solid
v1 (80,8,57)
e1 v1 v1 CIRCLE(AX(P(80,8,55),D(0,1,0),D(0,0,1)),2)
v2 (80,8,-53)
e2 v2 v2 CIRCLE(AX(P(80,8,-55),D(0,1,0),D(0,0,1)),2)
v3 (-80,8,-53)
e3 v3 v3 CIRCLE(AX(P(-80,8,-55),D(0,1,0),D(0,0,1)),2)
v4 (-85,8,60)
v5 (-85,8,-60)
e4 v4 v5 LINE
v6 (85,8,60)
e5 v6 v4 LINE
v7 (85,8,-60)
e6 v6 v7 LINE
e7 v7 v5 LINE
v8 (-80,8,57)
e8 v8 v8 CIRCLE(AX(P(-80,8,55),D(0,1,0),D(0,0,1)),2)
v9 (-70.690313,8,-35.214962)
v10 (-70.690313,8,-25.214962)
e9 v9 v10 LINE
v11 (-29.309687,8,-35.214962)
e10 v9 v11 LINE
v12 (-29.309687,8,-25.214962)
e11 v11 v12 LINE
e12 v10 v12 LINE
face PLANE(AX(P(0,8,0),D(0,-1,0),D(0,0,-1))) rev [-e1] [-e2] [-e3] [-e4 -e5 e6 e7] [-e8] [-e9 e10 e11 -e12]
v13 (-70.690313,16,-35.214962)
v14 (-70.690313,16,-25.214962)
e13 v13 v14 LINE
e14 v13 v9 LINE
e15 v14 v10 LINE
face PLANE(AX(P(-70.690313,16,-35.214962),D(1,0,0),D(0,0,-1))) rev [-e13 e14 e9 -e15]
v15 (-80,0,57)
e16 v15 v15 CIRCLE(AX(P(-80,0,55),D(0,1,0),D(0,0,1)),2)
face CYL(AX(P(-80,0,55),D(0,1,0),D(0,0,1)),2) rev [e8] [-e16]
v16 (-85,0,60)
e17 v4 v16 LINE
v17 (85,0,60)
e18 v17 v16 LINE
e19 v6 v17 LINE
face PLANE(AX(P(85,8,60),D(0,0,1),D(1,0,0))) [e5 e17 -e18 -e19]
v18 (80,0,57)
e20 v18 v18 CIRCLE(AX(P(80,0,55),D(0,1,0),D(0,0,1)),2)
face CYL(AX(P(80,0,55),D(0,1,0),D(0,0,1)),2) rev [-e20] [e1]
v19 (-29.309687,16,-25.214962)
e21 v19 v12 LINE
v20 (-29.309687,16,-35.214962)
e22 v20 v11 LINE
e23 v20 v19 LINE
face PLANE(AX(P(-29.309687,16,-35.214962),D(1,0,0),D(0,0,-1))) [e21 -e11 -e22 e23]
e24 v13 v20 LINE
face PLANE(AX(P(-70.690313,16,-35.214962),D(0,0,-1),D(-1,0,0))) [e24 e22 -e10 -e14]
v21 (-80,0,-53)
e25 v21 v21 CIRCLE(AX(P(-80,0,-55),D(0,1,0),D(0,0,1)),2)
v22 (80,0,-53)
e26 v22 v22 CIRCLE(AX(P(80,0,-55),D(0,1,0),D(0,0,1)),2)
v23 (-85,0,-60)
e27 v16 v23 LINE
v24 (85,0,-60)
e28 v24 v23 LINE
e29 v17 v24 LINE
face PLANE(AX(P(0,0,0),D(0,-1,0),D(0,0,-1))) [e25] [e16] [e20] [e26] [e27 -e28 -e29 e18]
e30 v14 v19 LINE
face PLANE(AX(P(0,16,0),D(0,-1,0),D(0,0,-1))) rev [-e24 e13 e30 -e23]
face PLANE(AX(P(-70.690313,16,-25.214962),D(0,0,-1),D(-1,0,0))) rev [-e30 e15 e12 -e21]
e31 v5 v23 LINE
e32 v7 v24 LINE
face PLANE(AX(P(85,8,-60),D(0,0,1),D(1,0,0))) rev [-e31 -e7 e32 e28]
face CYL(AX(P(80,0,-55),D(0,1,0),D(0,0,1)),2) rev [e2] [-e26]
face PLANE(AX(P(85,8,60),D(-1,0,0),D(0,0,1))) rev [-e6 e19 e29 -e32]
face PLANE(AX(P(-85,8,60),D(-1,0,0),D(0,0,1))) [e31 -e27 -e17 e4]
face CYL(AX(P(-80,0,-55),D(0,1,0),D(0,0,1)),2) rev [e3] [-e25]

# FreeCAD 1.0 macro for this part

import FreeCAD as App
import Part
import Sketcher


def add_polygon(sketch, points):
    """Adds a closed chain of lines whose ends are joined by coincident constraints."""
    first, n = sketch.GeometryCount, len(points)
    for a, b in zip(points, points[1:] + points[:1]):
        sketch.addGeometry(Part.LineSegment(App.Vector(*a, 0), App.Vector(*b, 0)), False)
    for i in range(n):
        sketch.addConstraint(Sketcher.Constraint("Coincident", first + i, 2, first + (i + 1) % n, 1))

doc = App.newDocument("Part")
body = doc.addObject("PartDesign::Body", "Body")

# Sketch on XZ plane
sketch1 = doc.addObject("Sketcher::SketchObject", "Sketch")
body.addObject(sketch1)
sketch1.AttachmentSupport = (doc.XZ_Plane, [""])
sketch1.MapMode = "FlatFace"
add_polygon(sketch1, [(-85, -60), (-85, 60), (85, 60), (85, -60)])  # lines 0-3
sketch1.addConstraint([
    Sketcher.Constraint("Vertical", 0),
    Sketcher.Constraint("Horizontal", 1),
    Sketcher.Constraint("Vertical", 2),
    Sketcher.Constraint("Horizontal", 3),
    Sketcher.Constraint("Symmetric", 0, 2, 2, 2, -1, 1),
    Sketcher.Constraint("DistanceX", 1, 1, 1, 2, 170.0),
    Sketcher.Constraint("DistanceY", 0, 1, 0, 2, 120.0),
])
pad1 = doc.addObject("PartDesign::Pad", "Pad")
body.addObject(pad1)
pad1.Profile = sketch1
pad1.Length = 8
pad1.Reversed = True

# Sketch on XZ plane
sketch2 = doc.addObject("Sketcher::SketchObject", "Sketch001")
body.addObject(sketch2)
sketch2.AttachmentSupport = (doc.XZ_Plane, [""])
sketch2.MapMode = "FlatFace"
sketch2.AttachmentOffset = App.Placement(App.Vector(0, 0, -8), App.Rotation())
add_polygon(sketch2, [(-70.690313, -35.214962), (-70.690313, -25.214962), (-29.309687, -25.214962), (-29.309687, -35.214962)])  # lines 0-3
sketch2.addConstraint([
    Sketcher.Constraint("Vertical", 0),
    Sketcher.Constraint("Horizontal", 1),
    Sketcher.Constraint("Vertical", 2),
    Sketcher.Constraint("Horizontal", 3),
    Sketcher.Constraint("DistanceY", 0, 1, 0, 2, 10.0),
    Sketcher.Constraint("DistanceX", 1, 1, 1, 2, 41.380627),
    Sketcher.Constraint("DistanceY", 0, 2, -1, 1, 25.214962),
    Sketcher.Constraint("DistanceX", 0, 2, -1, 1, 70.690313),
])
pad2 = doc.addObject("PartDesign::Pad", "Pad001")
body.addObject(pad2)
pad2.Profile = sketch2
pad2.Length = 8
pad2.Reversed = True

# Sketch on XZ plane
sketch3 = doc.addObject("Sketcher::SketchObject", "Sketch002")
body.addObject(sketch3)
sketch3.AttachmentSupport = (doc.XZ_Plane, [""])
sketch3.MapMode = "FlatFace"
sketch3.AttachmentOffset = App.Placement(App.Vector(0, 0, -8), App.Rotation())
sketch3.addGeometry([
    Part.Circle(App.Vector(-80, -55, 0), App.Vector(0, 0, 1), 2),
    Part.Circle(App.Vector(-80, 55, 0), App.Vector(0, 0, 1), 2),
    Part.Circle(App.Vector(80, -55, 0), App.Vector(0, 0, 1), 2),
    Part.Circle(App.Vector(80, 55, 0), App.Vector(0, 0, 1), 2),
], False)
sketch3.addConstraint([
    Sketcher.Constraint("Equal", 0, 1),
    Sketcher.Constraint("Equal", 1, 2),
    Sketcher.Constraint("Equal", 2, 3),
    Sketcher.Constraint("Symmetric", 1, 3, 2, 3, -1, 1),
    Sketcher.Constraint("Symmetric", 0, 3, 3, 3, -1, 1),
    Sketcher.Constraint("Symmetric", 0, 3, 2, 3, -2),
    Sketcher.Constraint("Diameter", 0, 4.0),
    Sketcher.Constraint("DistanceX", 0, 3, -1, 1, 80.0),
    Sketcher.Constraint("DistanceY", 0, 3, -1, 1, 55.0),
])
pocket1 = doc.addObject("PartDesign::Pocket", "Pocket")
body.addObject(pocket1)
pocket1.Profile = sketch3
pocket1.Length = 8
pocket1.Reversed = True

doc.recompute()
